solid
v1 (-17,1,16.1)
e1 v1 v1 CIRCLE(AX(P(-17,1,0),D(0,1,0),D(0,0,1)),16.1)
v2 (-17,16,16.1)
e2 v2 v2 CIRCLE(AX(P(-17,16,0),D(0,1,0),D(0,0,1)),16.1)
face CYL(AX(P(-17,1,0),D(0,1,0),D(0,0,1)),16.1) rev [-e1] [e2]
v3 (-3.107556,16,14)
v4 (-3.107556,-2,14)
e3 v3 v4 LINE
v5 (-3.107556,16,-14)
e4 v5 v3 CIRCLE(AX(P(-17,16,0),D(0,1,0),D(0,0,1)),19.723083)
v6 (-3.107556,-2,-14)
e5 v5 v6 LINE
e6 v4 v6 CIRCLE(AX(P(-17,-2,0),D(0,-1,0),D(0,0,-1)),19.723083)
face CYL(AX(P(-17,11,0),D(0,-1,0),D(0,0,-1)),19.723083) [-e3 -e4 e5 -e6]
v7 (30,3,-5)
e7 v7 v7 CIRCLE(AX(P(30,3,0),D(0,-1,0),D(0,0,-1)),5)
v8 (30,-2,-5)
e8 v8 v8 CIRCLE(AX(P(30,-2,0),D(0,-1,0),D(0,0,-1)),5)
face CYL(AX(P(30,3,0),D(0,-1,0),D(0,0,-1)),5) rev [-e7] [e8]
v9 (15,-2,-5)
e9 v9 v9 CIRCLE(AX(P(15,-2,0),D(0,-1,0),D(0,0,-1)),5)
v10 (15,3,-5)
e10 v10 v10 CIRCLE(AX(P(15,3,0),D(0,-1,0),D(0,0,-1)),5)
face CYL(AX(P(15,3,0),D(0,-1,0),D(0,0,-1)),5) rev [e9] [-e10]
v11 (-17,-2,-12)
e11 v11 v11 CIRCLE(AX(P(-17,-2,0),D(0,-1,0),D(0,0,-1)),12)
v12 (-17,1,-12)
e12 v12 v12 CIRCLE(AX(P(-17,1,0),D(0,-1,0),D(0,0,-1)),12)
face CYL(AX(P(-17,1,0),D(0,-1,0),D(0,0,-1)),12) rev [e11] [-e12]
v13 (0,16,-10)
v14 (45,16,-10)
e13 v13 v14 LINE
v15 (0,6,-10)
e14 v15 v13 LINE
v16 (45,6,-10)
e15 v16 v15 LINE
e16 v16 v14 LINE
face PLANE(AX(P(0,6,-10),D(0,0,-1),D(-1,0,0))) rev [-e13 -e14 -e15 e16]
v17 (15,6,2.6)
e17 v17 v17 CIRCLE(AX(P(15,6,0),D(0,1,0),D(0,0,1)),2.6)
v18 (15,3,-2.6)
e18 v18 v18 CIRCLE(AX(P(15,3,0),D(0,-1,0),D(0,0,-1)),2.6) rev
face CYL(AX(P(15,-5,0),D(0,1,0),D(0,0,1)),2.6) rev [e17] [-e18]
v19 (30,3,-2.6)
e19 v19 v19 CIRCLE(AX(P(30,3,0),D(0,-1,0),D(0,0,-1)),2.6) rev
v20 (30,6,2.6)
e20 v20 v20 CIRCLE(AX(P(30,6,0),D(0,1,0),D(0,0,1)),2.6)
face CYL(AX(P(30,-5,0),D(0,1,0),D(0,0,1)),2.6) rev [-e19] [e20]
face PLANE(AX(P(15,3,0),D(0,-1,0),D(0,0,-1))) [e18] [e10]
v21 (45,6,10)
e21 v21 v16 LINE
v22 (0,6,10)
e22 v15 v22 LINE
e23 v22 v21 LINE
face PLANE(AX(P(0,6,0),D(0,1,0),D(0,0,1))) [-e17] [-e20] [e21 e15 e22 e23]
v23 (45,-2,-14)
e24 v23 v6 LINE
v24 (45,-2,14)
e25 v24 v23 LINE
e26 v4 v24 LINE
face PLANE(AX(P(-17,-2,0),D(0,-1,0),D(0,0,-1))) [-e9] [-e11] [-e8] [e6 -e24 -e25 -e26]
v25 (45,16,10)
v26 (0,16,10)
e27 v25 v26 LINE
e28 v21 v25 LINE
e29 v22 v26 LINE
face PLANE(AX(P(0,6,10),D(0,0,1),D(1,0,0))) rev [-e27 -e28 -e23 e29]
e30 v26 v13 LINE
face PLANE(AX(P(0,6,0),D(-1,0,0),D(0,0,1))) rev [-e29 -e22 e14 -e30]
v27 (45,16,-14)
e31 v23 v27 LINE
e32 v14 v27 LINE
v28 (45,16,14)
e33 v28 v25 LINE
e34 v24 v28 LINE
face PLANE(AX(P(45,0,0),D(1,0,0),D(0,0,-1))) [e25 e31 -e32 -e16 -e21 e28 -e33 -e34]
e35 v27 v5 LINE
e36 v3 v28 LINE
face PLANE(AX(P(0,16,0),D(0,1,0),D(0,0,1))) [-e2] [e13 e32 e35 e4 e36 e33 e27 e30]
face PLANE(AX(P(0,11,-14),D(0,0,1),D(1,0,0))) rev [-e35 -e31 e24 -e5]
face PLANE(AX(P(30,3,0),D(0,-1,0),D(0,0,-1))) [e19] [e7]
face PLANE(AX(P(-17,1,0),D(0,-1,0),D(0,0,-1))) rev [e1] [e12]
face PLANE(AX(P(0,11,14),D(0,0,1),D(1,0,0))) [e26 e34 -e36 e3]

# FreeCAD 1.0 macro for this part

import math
import FreeCAD as App
import Part
import Sketcher
from FreeCAD import Vector
Q = App.Units.Quantity


def add_polygon(sketch, points):
    """Adds a closed chain of lines whose ends are joined by coincident constraints."""
    first, n = sketch.GeometryCount, len(points)
    for a, b in zip(points, points[1:] + points[:1]):
        sketch.addGeometry(Part.LineSegment(App.Vector(*a, 0), App.Vector(*b, 0)), False)
    for i in range(n):
        sketch.addConstraint(Sketcher.Constraint("Coincident", first + i, 2, first + (i + 1) % n, 1))

doc = App.newDocument("Part")
body = doc.addObject("PartDesign::Body", "Body")

sketch1 = body.newObject("Sketcher::SketchObject", "Sketch")
sketch1.AttachmentSupport = (doc.getObject("XZ_Plane"), [""])
sketch1.MapMode = "FlatFace"
sketch1.addGeometry(Part.LineSegment(Vector(50, -14, 0), Vector(-3, -14, 0)), False)
sketch1.addGeometry(Part.ArcOfCircle(Part.Circle(Vector(-17, 0, 0), Vector(0, 0, 1), 20), math.radians(45), math.radians(315)), False)
sketch1.addGeometry(Part.LineSegment(Vector(-3, 14, 0), Vector(50, 14, 0)), False)
sketch1.addGeometry(Part.LineSegment(Vector(50, 14, 0), Vector(50, -14, 0)), False)
sketch1.addGeometry(Part.Circle(Vector(-17, 0, 0), Vector(0, 0, 1), 16), False)
sketch1.addConstraint(Sketcher.Constraint("Coincident", 0, 2, 1, 2))
sketch1.addConstraint(Sketcher.Constraint("Coincident", 1, 1, 2, 1))
sketch1.addConstraint(Sketcher.Constraint("Coincident", 2, 2, 3, 1))
sketch1.addConstraint(Sketcher.Constraint("Coincident", 3, 2, 0, 1))
sketch1.addConstraint(Sketcher.Constraint("Horizontal", 0))
sketch1.addConstraint(Sketcher.Constraint("Horizontal", 2))
sketch1.addConstraint(Sketcher.Constraint("Vertical", 3))
sketch1.addConstraint(Sketcher.Constraint("Coincident", 4, 3, 1, 3))
sketch1.addConstraint(Sketcher.Constraint("Symmetric", 0, 2, 1, 1, -1))
sketch1.addConstraint(Sketcher.Constraint("Diameter", 4, Q("32 mm")))
sketch1.addConstraint(Sketcher.Constraint("DistanceY", 3, 2, 3, 1, Q("28 mm")))
sketch1.addConstraint(Sketcher.Constraint("DistanceX", 1, 3, -1, 1, Q("17 mm")))
sketch1.addConstraint(Sketcher.Constraint("DistanceX", -1, 1, 2, 2, Q("50 mm")))
sketch1.addConstraint(Sketcher.Constraint("Radius", 1, Q("19.723083 mm")))
pad1 = body.newObject("PartDesign::Pad", "Pad")
pad1.Profile = sketch1
pad1.Length = 11
pad1.Reversed = True

sketch2 = body.newObject("Sketcher::SketchObject", "Sketch001")
sketch2.AttachmentSupport = (doc.getObject("XZ_Plane"), [""])
sketch2.MapMode = "FlatFace"
sketch2.AttachmentOffset = App.Placement(Vector(0, 0, -11), App.Rotation())
add_polygon(sketch2, [(0, -10), (0, 10), (45, 10), (45, -10)])
sketch2.addConstraint(Sketcher.Constraint("Vertical", 0))
sketch2.addConstraint(Sketcher.Constraint("Horizontal", 1))
sketch2.addConstraint(Sketcher.Constraint("Vertical", 2))
sketch2.addConstraint(Sketcher.Constraint("Horizontal", 3))
sketch2.addConstraint(Sketcher.Constraint("Symmetric", 0, 2, 3, 2, -1, 1))
sketch2.addConstraint(Sketcher.Constraint("DistanceX", 1, 1, 1, 2, Q("45 mm")))
sketch2.addConstraint(Sketcher.Constraint("DistanceY", 0, 1, 0, 2, Q("20 mm")))
pocket1 = body.newObject("PartDesign::Pocket", "Pocket")
pocket1.Profile = sketch2
pocket1.Length = 5
pocket1.Reversed = True

sketch3 = body.newObject("Sketcher::SketchObject", "Sketch002")
sketch3.AttachmentSupport = (doc.getObject("XZ_Plane"), [""])
sketch3.MapMode = "FlatFace"
sketch3.AttachmentOffset = App.Placement(Vector(0, 0, -11), App.Rotation())
add_polygon(sketch3, [(45, -14), (45, 14), (50, 14), (50, -14)])
sketch3.addConstraint(Sketcher.Constraint("Vertical", 0))
sketch3.addConstraint(Sketcher.Constraint("Horizontal", 1))
sketch3.addConstraint(Sketcher.Constraint("Vertical", 2))
sketch3.addConstraint(Sketcher.Constraint("Horizontal", 3))
sketch3.addConstraint(Sketcher.Constraint("DistanceX", 1, 1, 1, 2, Q("5 mm")))
sketch3.addConstraint(Sketcher.Constraint("DistanceY", 0, 1, 0, 2, Q("28 mm")))
sketch3.addConstraint(Sketcher.Constraint("DistanceX", -1, 1, 0, 2, Q("45 mm")))
sketch3.addConstraint(Sketcher.Constraint("DistanceY", -1, 1, 0, 2, Q("14 mm")))
pocket2 = body.newObject("PartDesign::Pocket", "Pocket001")
pocket2.Profile = sketch3
pocket2.Length = 11
pocket2.Reversed = True

sketch4 = body.newObject("Sketcher::SketchObject", "Sketch003")
sketch4.AttachmentSupport = (doc.getObject("XZ_Plane"), [""])
sketch4.MapMode = "FlatFace"
sketch4.AttachmentOffset = App.Placement(Vector(0, 0, -6), App.Rotation())
sketch4.addGeometry(Part.Circle(Vector(15, 0, 0), Vector(0, 0, 1), 2.6), False)
sketch4.addGeometry(Part.Circle(Vector(30, 0, 0), Vector(0, 0, 1), 2.6), False)
sketch4.addConstraint(Sketcher.Constraint("Equal", 0, 1))
sketch4.addConstraint(Sketcher.Constraint("PointOnObject", 0, 3, -1))
sketch4.addConstraint(Sketcher.Constraint("PointOnObject", 1, 3, -1))
sketch4.addConstraint(Sketcher.Constraint("Diameter", 0, Q("5.2 mm")))
sketch4.addConstraint(Sketcher.Constraint("DistanceX", -1, 1, 0, 3, Q("15 mm")))
sketch4.addConstraint(Sketcher.Constraint("DistanceX", -1, 1, 1, 3, Q("30 mm")))
pocket3 = body.newObject("PartDesign::Pocket", "Pocket002")
pocket3.Profile = sketch4
pocket3.Length = 11
pocket3.Reversed = True

sketch5 = body.newObject("Sketcher::SketchObject", "Sketch004")
sketch5.AttachmentSupport = (doc.getObject("XZ_Plane"), [""])
sketch5.MapMode = "FlatFace"
sketch5.addGeometry(Part.Circle(Vector(15, 0, 0), Vector(0, 0, 1), 5), False)
sketch5.addGeometry(Part.Circle(Vector(30, 0, 0), Vector(0, 0, 1), 5), False)
sketch5.addConstraint(Sketcher.Constraint("Equal", 0, 1))
sketch5.addConstraint(Sketcher.Constraint("PointOnObject", 0, 3, -1))
sketch5.addConstraint(Sketcher.Constraint("PointOnObject", 1, 3, -1))
sketch5.addConstraint(Sketcher.Constraint("Diameter", 0, Q("10 mm")))
sketch5.addConstraint(Sketcher.Constraint("DistanceX", -1, 1, 0, 3, Q("15 mm")))
sketch5.addConstraint(Sketcher.Constraint("DistanceX", -1, 1, 1, 3, Q("30 mm")))
pocket4 = body.newObject("PartDesign::Pocket", "Pocket003")
pocket4.Profile = sketch5
pocket4.Length = 3

sketch6 = body.newObject("Sketcher::SketchObject", "Sketch005")
sketch6.AttachmentSupport = (doc.getObject("XZ_Plane"), [""])
sketch6.MapMode = "FlatFace"
sketch6.addGeometry(Part.Circle(Vector(-17, 0, 0), Vector(0, 0, 1), 16), False)
sketch6.addGeometry(Part.Circle(Vector(-17, 0, 0), Vector(0, 0, 1), 12), False)
sketch6.addConstraint(Sketcher.Constraint("Coincident", 1, 3, 0, 3))
sketch6.addConstraint(Sketcher.Constraint("PointOnObject", 0, 3, -1))
sketch6.addConstraint(Sketcher.Constraint("Diameter", 0, Q("32 mm")))
sketch6.addConstraint(Sketcher.Constraint("Diameter", 1, Q("24 mm")))
sketch6.addConstraint(Sketcher.Constraint("DistanceX", 0, 3, -1, 1, Q("17 mm")))
pad2 = body.newObject("PartDesign::Pad", "Pad001")
pad2.Profile = sketch6
pad2.Length = 1
pad2.Reversed = True

sketch7 = body.newObject("Sketcher::SketchObject", "Sketch006")
sketch7.AttachmentSupport = (doc.getObject("XZ_Plane"), [""])
sketch7.MapMode = "FlatFace"
sketch7.AttachmentOffset = App.Placement(Vector(0, 0, 2), App.Rotation())
sketch7.addGeometry(Part.LineSegment(Vector(45, 14, 0), Vector(-3, 14, 0)), False)
sketch7.addGeometry(Part.ArcOfCircle(Part.Circle(Vector(-17, 0, 0), Vector(0, 0, 1), 20), math.radians(45), math.radians(315)), False)
sketch7.addGeometry(Part.LineSegment(Vector(-3, -14, 0), Vector(45, -14, 0)), False)
sketch7.addGeometry(Part.LineSegment(Vector(45, -14, 0), Vector(45, 14, 0)), False)
sketch7.addGeometry(Part.Circle(Vector(30, 0, 0), Vector(0, 0, 1), 5), False)
sketch7.addGeometry(Part.Circle(Vector(15, 0, 0), Vector(0, 0, 1), 5), False)
sketch7.addGeometry(Part.Circle(Vector(-17, 0, 0), Vector(0, 0, 1), 12), False)
sketch7.addConstraint(Sketcher.Constraint("Coincident", 0, 2, 1, 1))
sketch7.addConstraint(Sketcher.Constraint("Coincident", 1, 2, 2, 1))
sketch7.addConstraint(Sketcher.Constraint("Coincident", 2, 2, 3, 1))
sketch7.addConstraint(Sketcher.Constraint("Coincident", 3, 2, 0, 1))
sketch7.addConstraint(Sketcher.Constraint("Horizontal", 0))
sketch7.addConstraint(Sketcher.Constraint("Horizontal", 2))
sketch7.addConstraint(Sketcher.Constraint("Vertical", 3))
sketch7.addConstraint(Sketcher.Constraint("Coincident", 6, 3, 1, 3))
sketch7.addConstraint(Sketcher.Constraint("Equal", 4, 5))
sketch7.addConstraint(Sketcher.Constraint("Symmetric", 0, 2, 1, 2, -1))
sketch7.addConstraint(Sketcher.Constraint("PointOnObject", 4, 3, -1))
sketch7.addConstraint(Sketcher.Constraint("PointOnObject", 5, 3, -1))
sketch7.addConstraint(Sketcher.Constraint("Diameter", 4, Q("10 mm")))
sketch7.addConstraint(Sketcher.Constraint("Diameter", 6, Q("24 mm")))
sketch7.addConstraint(Sketcher.Constraint("DistanceY", 3, 1, 3, 2, Q("28 mm")))
sketch7.addConstraint(Sketcher.Constraint("DistanceX", 1, 3, -1, 1, Q("17 mm")))
sketch7.addConstraint(Sketcher.Constraint("DistanceX", -1, 1, 4, 3, Q("30 mm")))
sketch7.addConstraint(Sketcher.Constraint("DistanceX", -1, 1, 5, 3, Q("15 mm")))
sketch7.addConstraint(Sketcher.Constraint("DistanceX", -1, 1, 2, 2, Q("45 mm")))
sketch7.addConstraint(Sketcher.Constraint("Radius", 1, Q("19.723083 mm")))
pad3 = body.newObject("PartDesign::Pad", "Pad002")
pad3.Profile = sketch7
pad3.Length = 2
pad3.Reversed = True

sketch8 = body.newObject("Sketcher::SketchObject", "Sketch007")
sketch8.AttachmentSupport = (doc.getObject("XZ_Plane"), [""])
sketch8.MapMode = "FlatFace"
sketch8.AttachmentOffset = App.Placement(Vector(0, 0, -11), App.Rotation())
sketch8.addGeometry(Part.Circle(Vector(-17, 0, 0), Vector(0, 0, 1), 16), False)
sketch8.addConstraint(Sketcher.Constraint("PointOnObject", 0, 3, -1))
sketch8.addConstraint(Sketcher.Constraint("Diameter", 0, Q("32.2 mm")))
sketch8.addConstraint(Sketcher.Constraint("DistanceX", 0, 3, -1, 1, Q("17 mm")))
pocket5 = body.newObject("PartDesign::Pocket", "Pocket004")
pocket5.Profile = sketch8
pocket5.Length = 10
pocket5.Reversed = True

sketch9 = body.newObject("Sketcher::SketchObject", "Sketch008")
sketch9.AttachmentSupport = (doc.getObject("XZ_Plane"), [""])
sketch9.MapMode = "FlatFace"
sketch9.AttachmentOffset = App.Placement(Vector(0, 0, -11), App.Rotation())
add_polygon(sketch9, [(-3.1, -14), (-3.1, -10), (45, -10), (45, -14)])
add_polygon(sketch9, [(-3.1, 10), (-3.1, 14), (45, 14), (45, 10)])
sketch9.addConstraint(Sketcher.Constraint("Vertical", 0))
sketch9.addConstraint(Sketcher.Constraint("Horizontal", 1))
sketch9.addConstraint(Sketcher.Constraint("Vertical", 2))
sketch9.addConstraint(Sketcher.Constraint("Horizontal", 3))
sketch9.addConstraint(Sketcher.Constraint("Vertical", 4))
sketch9.addConstraint(Sketcher.Constraint("Horizontal", 5))
sketch9.addConstraint(Sketcher.Constraint("Vertical", 6))
sketch9.addConstraint(Sketcher.Constraint("Horizontal", 7))
sketch9.addConstraint(Sketcher.Constraint("Symmetric", 3, 2, 4, 2, -1))
sketch9.addConstraint(Sketcher.Constraint("Symmetric", 1, 2, 6, 2, -1))
sketch9.addConstraint(Sketcher.Constraint("DistanceY", 0, 1, 0, 2, Q("4 mm")))
sketch9.addConstraint(Sketcher.Constraint("DistanceY", 0, 2, -1, 1, Q("10 mm")))
sketch9.addConstraint(Sketcher.Constraint("DistanceX", -1, 1, 1, 2, Q("45 mm")))
sketch9.addConstraint(Sketcher.Constraint("DistanceX", 1, 1, 1, 2, Q("48.107556 mm")))
pad4 = body.newObject("PartDesign::Pad", "Pad003")
pad4.Profile = sketch9
pad4.Length = 5
pad4.Reversed = True

sketch10 = body.newObject("Sketcher::SketchObject", "Sketch009")
sketch10.AttachmentSupport = (doc.getObject("XZ_Plane"), [""])
sketch10.MapMode = "FlatFace"
sketch10.AttachmentOffset = App.Placement(Vector(0, 0, -11), App.Rotation())
sketch10.addGeometry(Part.LineSegment(Vector(0, -10, 0), Vector(-3, -14, 0)), False)
sketch10.addGeometry(Part.ArcOfCircle(Part.Circle(Vector(-17, 0, 0), Vector(0, 0, 1), 20), math.radians(30), math.radians(315)), False)
sketch10.addGeometry(Part.LineSegment(Vector(0, 10, 0), Vector(0, -10, 0)), False)
sketch10.addGeometry(Part.Circle(Vector(-17, 0, 0), Vector(0, 0, 1), 16), False)
sketch10.addConstraint(Sketcher.Constraint("Coincident", 0, 2, 1, 2))
sketch10.addConstraint(Sketcher.Constraint("Coincident", 1, 1, 2, 1))
sketch10.addConstraint(Sketcher.Constraint("Coincident", 2, 2, 0, 1))
sketch10.addConstraint(Sketcher.Constraint("Vertical", 2))
sketch10.addConstraint(Sketcher.Constraint("Coincident", 3, 3, 1, 3))
sketch10.addConstraint(Sketcher.Constraint("Symmetric", 1, 1, 2, 2, -1, 1))
sketch10.addConstraint(Sketcher.Constraint("PointOnObject", 1, 3, -1))
sketch10.addConstraint(Sketcher.Constraint("Diameter", 3, Q("32.2 mm")))
sketch10.addConstraint(Sketcher.Constraint("DistanceY", 2, 2, 2, 1, Q("20 mm")))
sketch10.addConstraint(Sketcher.Constraint("DistanceX", 1, 3, -1, 1, Q("17 mm")))
sketch10.addConstraint(Sketcher.Constraint("DistanceY", 0, 2, -1, 1, Q("14 mm")))
pad5 = body.newObject("PartDesign::Pad", "Pad004")
pad5.Profile = sketch10
pad5.Length = 5
pad5.Reversed = True

doc.recompute()
